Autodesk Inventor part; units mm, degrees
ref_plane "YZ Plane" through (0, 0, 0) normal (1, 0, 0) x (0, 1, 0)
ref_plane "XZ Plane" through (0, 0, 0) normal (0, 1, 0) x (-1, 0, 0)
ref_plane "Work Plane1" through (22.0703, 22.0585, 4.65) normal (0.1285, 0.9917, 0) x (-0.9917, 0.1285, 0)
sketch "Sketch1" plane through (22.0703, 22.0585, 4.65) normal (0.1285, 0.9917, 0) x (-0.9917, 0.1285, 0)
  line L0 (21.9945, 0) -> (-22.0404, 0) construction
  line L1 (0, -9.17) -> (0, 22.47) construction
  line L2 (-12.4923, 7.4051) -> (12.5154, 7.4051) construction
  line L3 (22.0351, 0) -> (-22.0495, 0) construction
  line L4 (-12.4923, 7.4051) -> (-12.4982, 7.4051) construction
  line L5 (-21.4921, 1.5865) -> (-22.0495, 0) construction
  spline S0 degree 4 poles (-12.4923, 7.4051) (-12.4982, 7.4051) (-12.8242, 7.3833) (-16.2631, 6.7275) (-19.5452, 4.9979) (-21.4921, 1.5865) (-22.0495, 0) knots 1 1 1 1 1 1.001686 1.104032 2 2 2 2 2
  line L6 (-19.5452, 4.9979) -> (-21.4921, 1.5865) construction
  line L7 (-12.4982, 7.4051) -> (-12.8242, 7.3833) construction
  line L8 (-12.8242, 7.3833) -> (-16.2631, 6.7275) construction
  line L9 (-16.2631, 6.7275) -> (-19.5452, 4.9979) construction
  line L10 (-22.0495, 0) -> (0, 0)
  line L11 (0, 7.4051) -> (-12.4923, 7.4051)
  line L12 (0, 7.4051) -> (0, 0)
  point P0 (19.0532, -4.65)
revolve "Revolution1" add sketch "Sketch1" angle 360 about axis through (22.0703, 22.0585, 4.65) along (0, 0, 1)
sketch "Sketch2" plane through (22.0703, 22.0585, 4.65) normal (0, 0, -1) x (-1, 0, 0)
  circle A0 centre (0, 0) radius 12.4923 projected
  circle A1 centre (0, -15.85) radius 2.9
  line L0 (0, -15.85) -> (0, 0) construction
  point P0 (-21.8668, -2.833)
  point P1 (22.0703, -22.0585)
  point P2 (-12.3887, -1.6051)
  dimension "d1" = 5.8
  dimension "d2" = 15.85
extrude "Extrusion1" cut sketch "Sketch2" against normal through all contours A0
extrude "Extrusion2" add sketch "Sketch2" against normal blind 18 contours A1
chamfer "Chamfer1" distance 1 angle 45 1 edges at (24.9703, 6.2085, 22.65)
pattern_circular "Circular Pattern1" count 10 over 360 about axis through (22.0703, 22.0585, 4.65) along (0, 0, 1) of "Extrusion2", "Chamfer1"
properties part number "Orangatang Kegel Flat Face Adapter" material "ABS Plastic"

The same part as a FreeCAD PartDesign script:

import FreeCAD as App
import Part
import Sketcher
Q = App.Units.Quantity


def edges_at(feature, points):
    """Names of the edges that pass closest to the given points."""
    edges = feature.Shape.Edges
    near = lambda p: min(range(len(edges)), key=lambda i: edges[i].distToShape(Part.Vertex(*p))[0])
    return sorted({f"Edge{near(p) + 1}" for p in points})

doc = App.newDocument("Part")
params = doc.addObject("Spreadsheet::Sheet", "Params")
for row, (alias, value) in enumerate([
    ("revolution_angle", "360 deg"),
    ("sketch3_diameter", "5.8 mm"),
    ("pad1_length", "18 mm"),
    ("chamfer_size", "1 mm"),
], start=1):
    params.set(f"A{row}", alias)
    params.set(f"B{row}", "=" + value)
    params.setAlias(f"B{row}", alias)

body = doc.addObject("PartDesign::Body", "Body")

# Sketch on an angled plane
sketch1 = body.newObject("Sketcher::SketchObject", "Sketch")
sketch1.Placement = App.Placement(App.Vector(22.0703, 22.0585, 4.65), App.Rotation(App.Vector(-0.991709352, 0.128501212, 0), App.Vector(0, 0, 1), App.Vector(0.128501212, 0.991709352, 0), "ZXY"))
sketch1.addGeometry([
    Part.LineSegment(App.Vector(0, 7.4051, 0), App.Vector(-12.4923, 7.4051, 0)),
    Part.BSplineCurve([App.Vector(-12.4923, 7.4051, 0), App.Vector(-12.4982, 7.4051, 0), App.Vector(-12.8242, 7.3833, 0), App.Vector(-16.2631, 6.7275, 0), App.Vector(-19.5452, 4.9979, 0), App.Vector(-21.4921, 1.5865, 0), App.Vector(-22.0495, 0, 0)], [5, 1, 1, 5], [1, 1.001686, 1.104032, 2], False, 4, [1, 1, 1, 1, 1, 1, 1], False),
    Part.LineSegment(App.Vector(-22.0495, 0, 0), App.Vector(0, 0, 0)),
    Part.LineSegment(App.Vector(0, 0, 0), App.Vector(0, 7.4051, 0)),
], False)
sketch1.addConstraint([
    Sketcher.Constraint("Block", 1),
    Sketcher.Constraint("Coincident", 0, 2, 1, 1),
    Sketcher.Constraint("Coincident", 1, 2, 2, 1),
    Sketcher.Constraint("Coincident", 2, 2, 3, 1),
    Sketcher.Constraint("Coincident", 3, 2, 0, 1),
    Sketcher.Constraint("Horizontal", 0),
    Sketcher.Constraint("Horizontal", 2),
    Sketcher.Constraint("Vertical", 3),
    Sketcher.Constraint("PointOnObject", 3, 2, -2),
])
revolution = body.newObject("PartDesign::Revolution", "Revolution")
revolution.Profile = sketch1
revolution.ReferenceAxis = (sketch1, ["V_Axis"])
revolution.setExpression("Angle", "Params.revolution_angle")

# Sketch on XY plane
sketch2 = body.newObject("Sketcher::SketchObject", "Sketch001")
sketch2.AttachmentSupport = (doc.getObject("XY_Plane"), [""])
sketch2.MapMode = "FlatFace"
sketch2.AttachmentOffset = App.Placement(App.Vector(0, 0, 4.65), App.Rotation())
sketch2.addGeometry(Part.Circle(App.Vector(22, 22, 0), App.Vector(0, 0, 1), 12), False)
sketch2.addConstraint([
    Sketcher.Constraint("Diameter", 0, Q("24.9846 mm")),
    Sketcher.Constraint("DistanceX", -1, 1, 0, 3, Q("22.0703 mm")),
    Sketcher.Constraint("DistanceY", -1, 1, 0, 3, Q("22.0585 mm")),
])
pocket1 = body.newObject("PartDesign::Pocket", "Pocket")
pocket1.Profile = sketch2
pocket1.Type = "ThroughAll"
pocket1.Reversed = True

# Sketch on XY plane
sketch3 = body.newObject("Sketcher::SketchObject", "Sketch002")
sketch3.AttachmentSupport = (doc.getObject("XY_Plane"), [""])
sketch3.MapMode = "FlatFace"
sketch3.AttachmentOffset = App.Placement(App.Vector(0, 0, 4.65), App.Rotation())
sketch3.addGeometry(Part.Circle(App.Vector(22.1, 6.2, 0), App.Vector(0, 0, 1), 2.9), False)
sketch3.addConstraint([
    Sketcher.Constraint("Diameter", 0, Q("5.8 mm")),
    Sketcher.Constraint("DistanceX", -1, 1, 0, 3, Q("22.0703 mm")),
    Sketcher.Constraint("DistanceY", -1, 1, 0, 3, Q("6.2085 mm")),
])
sketch3.setExpression("Constraints[0]", "Params.sketch3_diameter")
pad1 = body.newObject("PartDesign::Pad", "Pad")
pad1.Profile = sketch3
pad1.setExpression("Length", "Params.pad1_length")
doc.recompute()

chamfer = body.newObject("PartDesign::Chamfer", "Chamfer")
chamfer.Base = (pad1, edges_at(pad1, [(24.97, 6.208, 22.65)]))
chamfer.setExpression("Size", "Params.chamfer_size")
doc.recompute()

datumline = body.newObject("PartDesign::Line", "DatumLine")
datumline.Placement = App.Placement(App.Vector(22.0703, 22.0585, 0), App.Rotation(App.Vector(0, 0, 1), App.Vector(0, 0, 1)))
polarpattern = body.newObject("PartDesign::PolarPattern", "PolarPattern")
polarpattern.Originals = [pad1, chamfer]
polarpattern.Axis = (datumline, [""])
polarpattern.Angle = 360
polarpattern.Occurrences = 10
body.Tip = polarpattern

doc.recompute()
